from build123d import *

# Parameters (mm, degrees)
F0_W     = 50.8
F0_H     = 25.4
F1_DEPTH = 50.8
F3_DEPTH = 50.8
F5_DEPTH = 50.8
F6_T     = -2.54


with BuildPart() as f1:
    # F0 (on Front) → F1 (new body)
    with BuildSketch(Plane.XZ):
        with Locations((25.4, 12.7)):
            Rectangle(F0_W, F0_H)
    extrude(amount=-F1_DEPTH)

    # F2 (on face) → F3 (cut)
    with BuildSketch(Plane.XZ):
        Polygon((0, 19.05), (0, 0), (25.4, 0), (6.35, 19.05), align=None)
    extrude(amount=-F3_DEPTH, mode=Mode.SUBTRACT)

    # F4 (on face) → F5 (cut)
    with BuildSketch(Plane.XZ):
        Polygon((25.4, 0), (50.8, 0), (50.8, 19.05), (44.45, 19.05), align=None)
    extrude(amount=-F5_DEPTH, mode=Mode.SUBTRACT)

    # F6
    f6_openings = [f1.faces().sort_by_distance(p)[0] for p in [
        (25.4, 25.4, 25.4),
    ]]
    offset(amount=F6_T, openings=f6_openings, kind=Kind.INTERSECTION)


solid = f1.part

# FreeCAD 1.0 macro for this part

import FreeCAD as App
import Part
import Sketcher
Q = App.Units.Quantity


def faces_at(feature, points):
    """Names of the faces that lie closest to the given points."""
    faces = feature.Shape.Faces
    near = lambda p: min(range(len(faces)), key=lambda i: faces[i].distToShape(Part.Vertex(*p))[0])
    return sorted({f"Face{near(p) + 1}" for p in points})


def add_polygon(sketch, points):
    """Adds a closed chain of lines whose ends are joined by coincident constraints."""
    first, n = sketch.GeometryCount, len(points)
    for a, b in zip(points, points[1:] + points[:1]):
        sketch.addGeometry(Part.LineSegment(App.Vector(*a, 0), App.Vector(*b, 0)), False)
    for i in range(n):
        sketch.addConstraint(Sketcher.Constraint("Coincident", first + i, 2, first + (i + 1) % n, 1))

doc = App.newDocument("Part")
params = doc.addObject("Spreadsheet::Sheet", "Params")
for row, (alias, value) in enumerate([
    ("sketch1_width", "2 in"),
    ("sketch1_height", "1 in"),
    ("pad1_length", "2 in"),
    ("sketch2_width", "1 in"),
    ("sketch2_width2", "0.25 in"),
    ("pocket1_length", "2 in"),
    ("sketch3_width", "1 in"),
    ("sketch3_width2", "0.25 in"),
    ("pocket2_length", "2 in"),
    ("thickness_wall", "0.1 in"),
], start=1):
    params.set(f"A{row}", alias)
    params.set(f"B{row}", "=" + value)
    params.setAlias(f"B{row}", alias)

body = doc.addObject("PartDesign::Body", "Body")

# Sketch on XZ plane
sketch1 = body.newObject("Sketcher::SketchObject", "Sketch")
sketch1.AttachmentSupport = (doc.getObject("XZ_Plane"), [""])
sketch1.MapMode = "FlatFace"
add_polygon(sketch1, [(0, 25), (0, 0), (51, 0), (51, 25)])  # lines 0-3
sketch1.addConstraint(Sketcher.Constraint("Vertical", 0))
sketch1.addConstraint(Sketcher.Constraint("Horizontal", 1))
sketch1.addConstraint(Sketcher.Constraint("Vertical", 2))
sketch1.addConstraint(Sketcher.Constraint("Horizontal", 3))
sketch1.addConstraint(Sketcher.Constraint("Coincident", 0, 2, -1, 1))
sketch1.addConstraint(Sketcher.Constraint("DistanceX", 1, 1, 1, 2, Q("2 in")))
sketch1.addConstraint(Sketcher.Constraint("DistanceY", 0, 2, 0, 1, Q("1 in")))
sketch1.setExpression("Constraints[9]", "Params.sketch1_width")
sketch1.setExpression("Constraints[10]", "Params.sketch1_height")
pad1 = body.newObject("PartDesign::Pad", "Pad")
pad1.Profile = sketch1
pad1.setExpression("Length", "Params.pad1_length")
pad1.Reversed = True

# Sketch on XZ plane
sketch2 = body.newObject("Sketcher::SketchObject", "Sketch001")
sketch2.AttachmentSupport = (doc.getObject("XZ_Plane"), [""])
sketch2.MapMode = "FlatFace"
add_polygon(sketch2, [(0, 19), (0, 0), (25, 0), (6, 19)])  # lines 0-3
sketch2.addConstraint(Sketcher.Constraint("Vertical", 0))
sketch2.addConstraint(Sketcher.Constraint("Horizontal", 1))
sketch2.addConstraint(Sketcher.Constraint("Horizontal", 3))
sketch2.addConstraint(Sketcher.Constraint("Coincident", 0, 2, -1, 1))
sketch2.addConstraint(Sketcher.Constraint("DistanceX", 1, 1, 1, 2, Q("1 in")))
sketch2.addConstraint(Sketcher.Constraint("Angle", 2, Q("135 deg")))
sketch2.addConstraint(Sketcher.Constraint("DistanceX", 3, 2, 3, 1, Q("0.25 in")))
sketch2.setExpression("Constraints[8]", "Params.sketch2_width")
sketch2.setExpression("Constraints[10]", "Params.sketch2_width2")
pocket1 = body.newObject("PartDesign::Pocket", "Pocket")
pocket1.Profile = sketch2
pocket1.setExpression("Length", "Params.pocket1_length")

# Sketch on XZ plane
sketch3 = body.newObject("Sketcher::SketchObject", "Sketch002")
sketch3.AttachmentSupport = (doc.getObject("XZ_Plane"), [""])
sketch3.MapMode = "FlatFace"
add_polygon(sketch3, [(25, 0), (51, 0), (51, 19), (44, 19)])  # lines 0-3
sketch3.addConstraint(Sketcher.Constraint("Horizontal", 0))
sketch3.addConstraint(Sketcher.Constraint("Vertical", 1))
sketch3.addConstraint(Sketcher.Constraint("Horizontal", 2))
sketch3.addConstraint(Sketcher.Constraint("PointOnObject", 0, 2, -1))
sketch3.addConstraint(Sketcher.Constraint("DistanceX", 0, 1, 0, 2, Q("1 in")))
sketch3.addConstraint(Sketcher.Constraint("DistanceX", -1, 1, 0, 2, Q("2 in")))
sketch3.addConstraint(Sketcher.Constraint("Angle", 3, Q("-135 deg")))
sketch3.addConstraint(Sketcher.Constraint("DistanceX", 2, 2, 2, 1, Q("0.25 in")))
sketch3.setExpression("Constraints[8]", "Params.sketch3_width")
sketch3.setExpression("Constraints[11]", "Params.sketch3_width2")
pocket2 = body.newObject("PartDesign::Pocket", "Pocket001")
pocket2.Profile = sketch3
pocket2.setExpression("Length", "Params.pocket2_length")
doc.recompute()

thickness = body.newObject("PartDesign::Thickness", "Thickness")
thickness.Base = (pocket2, faces_at(pocket2, [(25.4, 25.4, 25.4)]))
thickness.setExpression("Value", "Params.thickness_wall")
thickness.Reversed = True
thickness.Join = "Intersection"

doc.recompute()
